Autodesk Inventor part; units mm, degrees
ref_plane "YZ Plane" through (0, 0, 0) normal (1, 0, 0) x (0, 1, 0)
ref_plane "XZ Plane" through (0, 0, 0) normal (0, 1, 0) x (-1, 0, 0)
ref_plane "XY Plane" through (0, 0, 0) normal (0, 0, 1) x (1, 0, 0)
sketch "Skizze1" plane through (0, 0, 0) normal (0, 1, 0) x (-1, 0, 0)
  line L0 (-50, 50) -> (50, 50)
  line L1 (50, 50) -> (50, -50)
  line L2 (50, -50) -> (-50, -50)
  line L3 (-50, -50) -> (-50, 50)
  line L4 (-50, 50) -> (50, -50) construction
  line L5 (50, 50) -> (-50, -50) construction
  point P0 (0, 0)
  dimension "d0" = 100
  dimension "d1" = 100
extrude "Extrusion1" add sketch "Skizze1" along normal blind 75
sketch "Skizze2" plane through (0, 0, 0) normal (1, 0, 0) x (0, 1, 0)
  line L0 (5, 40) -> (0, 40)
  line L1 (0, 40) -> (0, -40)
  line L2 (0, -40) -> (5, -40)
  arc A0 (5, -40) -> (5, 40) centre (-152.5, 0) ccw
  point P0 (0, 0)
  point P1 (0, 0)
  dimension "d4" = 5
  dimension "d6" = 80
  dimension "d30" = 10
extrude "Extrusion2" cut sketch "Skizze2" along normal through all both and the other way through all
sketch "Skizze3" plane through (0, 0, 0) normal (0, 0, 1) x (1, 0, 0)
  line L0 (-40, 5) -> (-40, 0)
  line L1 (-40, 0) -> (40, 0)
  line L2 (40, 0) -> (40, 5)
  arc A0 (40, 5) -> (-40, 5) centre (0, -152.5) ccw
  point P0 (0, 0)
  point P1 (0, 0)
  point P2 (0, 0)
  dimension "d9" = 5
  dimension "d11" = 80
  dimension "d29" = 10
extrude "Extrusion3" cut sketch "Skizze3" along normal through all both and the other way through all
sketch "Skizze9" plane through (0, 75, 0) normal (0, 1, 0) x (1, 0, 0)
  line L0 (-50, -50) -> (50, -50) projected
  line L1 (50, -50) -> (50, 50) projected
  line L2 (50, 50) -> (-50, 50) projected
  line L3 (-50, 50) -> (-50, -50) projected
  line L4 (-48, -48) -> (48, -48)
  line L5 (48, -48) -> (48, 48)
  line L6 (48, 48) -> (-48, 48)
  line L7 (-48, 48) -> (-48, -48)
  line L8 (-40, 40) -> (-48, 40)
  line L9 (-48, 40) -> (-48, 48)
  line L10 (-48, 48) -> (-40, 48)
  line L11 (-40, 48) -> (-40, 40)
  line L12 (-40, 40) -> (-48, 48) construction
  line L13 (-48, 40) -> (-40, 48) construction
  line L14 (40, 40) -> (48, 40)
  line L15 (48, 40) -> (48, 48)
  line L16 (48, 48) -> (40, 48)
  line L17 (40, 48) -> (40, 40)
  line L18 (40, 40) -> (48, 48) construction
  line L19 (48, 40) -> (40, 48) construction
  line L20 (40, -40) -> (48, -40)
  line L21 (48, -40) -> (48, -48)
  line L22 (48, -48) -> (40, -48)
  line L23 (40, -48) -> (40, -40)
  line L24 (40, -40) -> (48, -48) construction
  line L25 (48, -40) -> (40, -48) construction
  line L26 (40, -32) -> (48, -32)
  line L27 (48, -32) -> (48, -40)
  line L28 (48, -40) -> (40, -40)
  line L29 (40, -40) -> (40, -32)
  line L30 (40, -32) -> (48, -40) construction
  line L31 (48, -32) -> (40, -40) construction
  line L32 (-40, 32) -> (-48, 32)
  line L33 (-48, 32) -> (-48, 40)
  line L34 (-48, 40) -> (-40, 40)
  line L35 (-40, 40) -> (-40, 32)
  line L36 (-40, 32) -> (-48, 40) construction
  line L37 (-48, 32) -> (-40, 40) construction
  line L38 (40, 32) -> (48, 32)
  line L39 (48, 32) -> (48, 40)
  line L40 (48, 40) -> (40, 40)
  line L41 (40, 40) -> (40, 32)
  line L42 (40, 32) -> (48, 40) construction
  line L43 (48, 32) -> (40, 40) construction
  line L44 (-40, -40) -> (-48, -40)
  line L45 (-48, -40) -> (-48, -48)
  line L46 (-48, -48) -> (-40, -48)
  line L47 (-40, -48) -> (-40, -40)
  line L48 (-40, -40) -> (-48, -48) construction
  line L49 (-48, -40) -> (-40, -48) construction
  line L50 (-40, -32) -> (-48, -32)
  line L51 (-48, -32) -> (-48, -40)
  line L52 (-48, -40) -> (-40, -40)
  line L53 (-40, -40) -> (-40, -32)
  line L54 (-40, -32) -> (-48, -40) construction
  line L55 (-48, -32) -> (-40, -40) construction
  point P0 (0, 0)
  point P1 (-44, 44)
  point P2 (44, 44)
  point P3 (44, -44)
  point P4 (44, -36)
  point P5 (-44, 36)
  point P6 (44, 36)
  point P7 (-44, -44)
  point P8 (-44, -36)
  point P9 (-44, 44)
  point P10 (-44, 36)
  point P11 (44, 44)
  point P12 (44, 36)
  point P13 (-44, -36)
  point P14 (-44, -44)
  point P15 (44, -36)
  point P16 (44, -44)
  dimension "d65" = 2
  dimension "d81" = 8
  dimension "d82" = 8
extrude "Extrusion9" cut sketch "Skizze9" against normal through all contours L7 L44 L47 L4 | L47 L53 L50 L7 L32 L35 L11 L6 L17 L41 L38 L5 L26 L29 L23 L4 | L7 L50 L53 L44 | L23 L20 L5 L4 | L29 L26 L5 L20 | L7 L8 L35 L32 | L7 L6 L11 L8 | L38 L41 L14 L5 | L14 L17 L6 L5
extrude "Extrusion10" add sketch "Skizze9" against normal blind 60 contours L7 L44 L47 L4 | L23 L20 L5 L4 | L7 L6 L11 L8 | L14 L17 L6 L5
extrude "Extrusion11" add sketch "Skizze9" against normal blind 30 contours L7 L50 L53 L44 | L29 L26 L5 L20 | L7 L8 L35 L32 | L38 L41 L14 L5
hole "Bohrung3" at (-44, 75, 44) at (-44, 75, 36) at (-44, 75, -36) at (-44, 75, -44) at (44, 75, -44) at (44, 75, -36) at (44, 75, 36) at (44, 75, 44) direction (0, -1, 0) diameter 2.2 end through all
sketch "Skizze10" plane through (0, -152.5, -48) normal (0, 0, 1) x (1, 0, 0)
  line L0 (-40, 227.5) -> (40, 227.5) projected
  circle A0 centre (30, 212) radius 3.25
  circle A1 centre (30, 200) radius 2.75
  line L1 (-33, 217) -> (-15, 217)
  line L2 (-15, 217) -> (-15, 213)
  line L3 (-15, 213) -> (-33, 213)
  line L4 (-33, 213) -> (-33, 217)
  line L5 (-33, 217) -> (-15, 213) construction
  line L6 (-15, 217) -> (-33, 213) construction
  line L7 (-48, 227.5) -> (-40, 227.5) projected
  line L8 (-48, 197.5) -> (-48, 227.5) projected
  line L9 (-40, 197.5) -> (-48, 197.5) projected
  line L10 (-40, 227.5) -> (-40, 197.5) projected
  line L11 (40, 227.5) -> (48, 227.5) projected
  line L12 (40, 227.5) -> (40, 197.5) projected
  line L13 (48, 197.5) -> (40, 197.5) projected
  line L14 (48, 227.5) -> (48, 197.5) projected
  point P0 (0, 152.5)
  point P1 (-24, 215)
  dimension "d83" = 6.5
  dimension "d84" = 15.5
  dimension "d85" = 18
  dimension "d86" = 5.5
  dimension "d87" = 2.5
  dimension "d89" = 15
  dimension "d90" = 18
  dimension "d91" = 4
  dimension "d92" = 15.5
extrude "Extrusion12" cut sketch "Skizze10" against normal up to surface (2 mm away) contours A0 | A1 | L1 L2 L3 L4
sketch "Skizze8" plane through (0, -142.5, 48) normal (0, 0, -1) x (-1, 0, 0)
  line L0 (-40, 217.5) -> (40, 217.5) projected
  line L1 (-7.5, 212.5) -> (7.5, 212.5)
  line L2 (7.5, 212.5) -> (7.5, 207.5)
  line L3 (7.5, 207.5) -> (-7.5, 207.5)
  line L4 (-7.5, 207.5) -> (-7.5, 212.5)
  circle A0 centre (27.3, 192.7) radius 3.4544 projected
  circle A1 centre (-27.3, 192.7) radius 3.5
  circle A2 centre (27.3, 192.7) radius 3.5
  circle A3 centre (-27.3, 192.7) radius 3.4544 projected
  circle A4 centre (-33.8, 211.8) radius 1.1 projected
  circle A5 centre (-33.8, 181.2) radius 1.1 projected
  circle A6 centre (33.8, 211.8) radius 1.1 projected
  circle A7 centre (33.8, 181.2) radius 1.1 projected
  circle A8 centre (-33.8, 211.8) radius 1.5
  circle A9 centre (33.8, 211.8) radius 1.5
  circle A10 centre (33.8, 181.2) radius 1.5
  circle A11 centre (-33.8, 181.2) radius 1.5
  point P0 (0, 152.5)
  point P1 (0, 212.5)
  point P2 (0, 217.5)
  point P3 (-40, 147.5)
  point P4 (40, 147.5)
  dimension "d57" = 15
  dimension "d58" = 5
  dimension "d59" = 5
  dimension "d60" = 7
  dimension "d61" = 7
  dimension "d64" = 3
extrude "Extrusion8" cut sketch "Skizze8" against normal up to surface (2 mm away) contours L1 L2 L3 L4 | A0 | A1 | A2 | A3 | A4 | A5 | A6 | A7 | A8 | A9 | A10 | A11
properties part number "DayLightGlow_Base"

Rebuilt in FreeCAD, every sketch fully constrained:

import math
import FreeCAD as App
import Part
import Sketcher
from FreeCAD import Vector

doc = App.newDocument("Part")
body = doc.addObject("PartDesign::Body", "Body")

sketch1 = body.newObject("Sketcher::SketchObject", "Sketch")
sketch1.AttachmentSupport = (doc.getObject("XZ_Plane"), [""])
sketch1.MapMode = "FlatFace"
sketch1.addGeometry([
    Part.LineSegment(Vector(-50, 50, 0), Vector(50, 50, 0)),
    Part.LineSegment(Vector(50, 50, 0), Vector(50, -50, 0)),
    Part.LineSegment(Vector(50, -50, 0), Vector(-50, -50, 0)),
    Part.LineSegment(Vector(-50, -50, 0), Vector(-50, 50, 0)),
], False)
sketch1.addConstraint([
    Sketcher.Constraint("Coincident", 0, 2, 1, 1),
    Sketcher.Constraint("Coincident", 1, 2, 2, 1),
    Sketcher.Constraint("Coincident", 2, 2, 3, 1),
    Sketcher.Constraint("Coincident", 3, 2, 0, 1),
    Sketcher.Constraint("Horizontal", 0),
    Sketcher.Constraint("Vertical", 1),
    Sketcher.Constraint("Horizontal", 2),
    Sketcher.Constraint("Vertical", 3),
    Sketcher.Constraint("Symmetric", 0, 2, 2, 2, -1, 1),
    Sketcher.Constraint("Equal", 2, 1),
    Sketcher.Constraint("DistanceX", 0, 1, 0, 2, 100.0),
])
pad1 = body.newObject("PartDesign::Pad", "Pad")
pad1.Profile = sketch1
pad1.Length = 75
pad1.Reversed = True

sketch2 = body.newObject("Sketcher::SketchObject", "Sketch001")
sketch2.AttachmentSupport = (doc.getObject("YZ_Plane"), [""])
sketch2.MapMode = "FlatFace"
sketch2.addGeometry([
    Part.ArcOfCircle(Part.Circle(Vector(-152.5, 0, 0), Vector(0, 0, 1), 162.5), math.radians(-14.250033), math.radians(14.250033)),
    Part.LineSegment(Vector(5, 40, 0), Vector(0, 40, 0)),
    Part.LineSegment(Vector(0, 40, 0), Vector(0, -40, 0)),
    Part.LineSegment(Vector(0, -40, 0), Vector(5, -40, 0)),
], False)
sketch2.addConstraint([
    Sketcher.Constraint("Coincident", 0, 2, 1, 1),
    Sketcher.Constraint("Coincident", 1, 2, 2, 1),
    Sketcher.Constraint("Coincident", 2, 2, 3, 1),
    Sketcher.Constraint("Coincident", 3, 2, 0, 1),
    Sketcher.Constraint("Horizontal", 1),
    Sketcher.Constraint("Vertical", 2),
    Sketcher.Constraint("Horizontal", 3),
    Sketcher.Constraint("Symmetric", 1, 2, 2, 2, -1, 1),
    Sketcher.Constraint("PointOnObject", 0, 3, -1),
    Sketcher.Constraint("DistanceX", 1, 2, 1, 1, 5.0),
    Sketcher.Constraint("DistanceY", 2, 2, 2, 1, 80.0),
    Sketcher.Constraint("Radius", 0, 162.5),
])
pocket1 = body.newObject("PartDesign::Pocket", "Pocket")
pocket1.Profile = sketch2
pocket1.Type = "ThroughAll"
pocket1.Midplane = True

sketch3 = body.newObject("Sketcher::SketchObject", "Sketch002")
sketch3.AttachmentSupport = (doc.getObject("XY_Plane"), [""])
sketch3.MapMode = "FlatFace"
sketch3.addGeometry([
    Part.ArcOfCircle(Part.Circle(Vector(0, -152.5, 0), Vector(0, 0, 1), 162.5), math.radians(75.749967), math.radians(104.250033)),
    Part.LineSegment(Vector(-40, 5, 0), Vector(-40, 0, 0)),
    Part.LineSegment(Vector(-40, 0, 0), Vector(40, 0, 0)),
    Part.LineSegment(Vector(40, 0, 0), Vector(40, 5, 0)),
], False)
sketch3.addConstraint([
    Sketcher.Constraint("Coincident", 0, 2, 1, 1),
    Sketcher.Constraint("Coincident", 1, 2, 2, 1),
    Sketcher.Constraint("Coincident", 2, 2, 3, 1),
    Sketcher.Constraint("Coincident", 3, 2, 0, 1),
    Sketcher.Constraint("Vertical", 1),
    Sketcher.Constraint("Horizontal", 2),
    Sketcher.Constraint("Vertical", 3),
    Sketcher.Constraint("Symmetric", 1, 2, 2, 2, -1, 1),
    Sketcher.Constraint("PointOnObject", 0, 3, -2),
    Sketcher.Constraint("DistanceX", 2, 1, 2, 2, 80.0),
    Sketcher.Constraint("DistanceY", 1, 2, 1, 1, 5.0),
    Sketcher.Constraint("Radius", 0, 162.5),
])
pocket2 = body.newObject("PartDesign::Pocket", "Pocket001")
pocket2.Profile = sketch3
pocket2.Type = "ThroughAll"
pocket2.Midplane = True

sketch4 = body.newObject("Sketcher::SketchObject", "Sketch003")
sketch4.AttachmentSupport = (doc.getObject("XZ_Plane"), [""])
sketch4.MapMode = "FlatFace"
sketch4.AttachmentOffset = App.Placement(Vector(0, 0, -75), App.Rotation())
sketch4.addGeometry([
    Part.LineSegment(Vector(-48, 48, 0), Vector(48, 48, 0)),
    Part.LineSegment(Vector(48, 48, 0), Vector(48, -48, 0)),
    Part.LineSegment(Vector(48, -48, 0), Vector(-48, -48, 0)),
    Part.LineSegment(Vector(-48, -48, 0), Vector(-48, 48, 0)),
], False)
sketch4.addConstraint([
    Sketcher.Constraint("Coincident", 0, 2, 1, 1),
    Sketcher.Constraint("Coincident", 1, 2, 2, 1),
    Sketcher.Constraint("Coincident", 2, 2, 3, 1),
    Sketcher.Constraint("Coincident", 3, 2, 0, 1),
    Sketcher.Constraint("Horizontal", 0),
    Sketcher.Constraint("Vertical", 1),
    Sketcher.Constraint("Horizontal", 2),
    Sketcher.Constraint("Vertical", 3),
    Sketcher.Constraint("Symmetric", 0, 2, 2, 2, -1, 1),
    Sketcher.Constraint("Equal", 2, 1),
    Sketcher.Constraint("DistanceX", 0, 1, 0, 2, 96.0),
])
pocket3 = body.newObject("PartDesign::Pocket", "Pocket002")
pocket3.Profile = sketch4
pocket3.Type = "ThroughAll"
pocket3.Reversed = True

sketch5 = body.newObject("Sketcher::SketchObject", "Sketch004")
sketch5.AttachmentSupport = (doc.getObject("XZ_Plane"), [""])
sketch5.MapMode = "FlatFace"
sketch5.AttachmentOffset = App.Placement(Vector(0, 0, -75), App.Rotation())
sketch5.addGeometry([
    Part.LineSegment(Vector(-48, 40, 0), Vector(-48, 48, 0)),
    Part.LineSegment(Vector(-48, 48, 0), Vector(-40, 48, 0)),
    Part.LineSegment(Vector(-40, 48, 0), Vector(-40, 40, 0)),
    Part.LineSegment(Vector(-40, 40, 0), Vector(-48, 40, 0)),
    Part.LineSegment(Vector(40, 40, 0), Vector(40, 48, 0)),
    Part.LineSegment(Vector(40, 48, 0), Vector(48, 48, 0)),
    Part.LineSegment(Vector(48, 48, 0), Vector(48, 40, 0)),
    Part.LineSegment(Vector(48, 40, 0), Vector(40, 40, 0)),
    Part.LineSegment(Vector(-48, -48, 0), Vector(-48, -40, 0)),
    Part.LineSegment(Vector(-48, -40, 0), Vector(-40, -40, 0)),
    Part.LineSegment(Vector(-40, -40, 0), Vector(-40, -48, 0)),
    Part.LineSegment(Vector(-40, -48, 0), Vector(-48, -48, 0)),
    Part.LineSegment(Vector(40, -40, 0), Vector(48, -40, 0)),
    Part.LineSegment(Vector(48, -40, 0), Vector(48, -48, 0)),
    Part.LineSegment(Vector(48, -48, 0), Vector(40, -48, 0)),
    Part.LineSegment(Vector(40, -48, 0), Vector(40, -40, 0)),
], False)
sketch5.addConstraint([
    Sketcher.Constraint("Coincident", 0, 2, 1, 1),
    Sketcher.Constraint("Coincident", 1, 2, 2, 1),
    Sketcher.Constraint("Coincident", 2, 2, 3, 1),
    Sketcher.Constraint("Coincident", 3, 2, 0, 1),
    Sketcher.Constraint("Coincident", 4, 2, 5, 1),
    Sketcher.Constraint("Coincident", 5, 2, 6, 1),
    Sketcher.Constraint("Coincident", 6, 2, 7, 1),
    Sketcher.Constraint("Coincident", 7, 2, 4, 1),
    Sketcher.Constraint("Coincident", 8, 2, 9, 1),
    Sketcher.Constraint("Coincident", 9, 2, 10, 1),
    Sketcher.Constraint("Coincident", 10, 2, 11, 1),
    Sketcher.Constraint("Coincident", 11, 2, 8, 1),
    Sketcher.Constraint("Coincident", 12, 2, 13, 1),
    Sketcher.Constraint("Coincident", 13, 2, 14, 1),
    Sketcher.Constraint("Coincident", 14, 2, 15, 1),
    Sketcher.Constraint("Coincident", 15, 2, 12, 1),
    Sketcher.Constraint("Vertical", 0),
    Sketcher.Constraint("Horizontal", 1),
    Sketcher.Constraint("Vertical", 2),
    Sketcher.Constraint("Horizontal", 3),
    Sketcher.Constraint("Vertical", 4),
    Sketcher.Constraint("Horizontal", 5),
    Sketcher.Constraint("Vertical", 6),
    Sketcher.Constraint("Horizontal", 7),
    Sketcher.Constraint("Vertical", 8),
    Sketcher.Constraint("Horizontal", 9),
    Sketcher.Constraint("Vertical", 10),
    Sketcher.Constraint("Horizontal", 11),
    Sketcher.Constraint("Horizontal", 12),
    Sketcher.Constraint("Vertical", 13),
    Sketcher.Constraint("Horizontal", 14),
    Sketcher.Constraint("Vertical", 15),
    Sketcher.Constraint("Symmetric", 6, 2, 8, 2, -1, 1),
    Sketcher.Constraint("Symmetric", 4, 2, 10, 2, -1, 1),
    Sketcher.Constraint("Symmetric", 3, 2, 12, 2, -1, 1),
    Sketcher.Constraint("Symmetric", 1, 2, 14, 2, -1, 1),
    Sketcher.Constraint("Symmetric", 1, 2, 4, 2, -2),
    Sketcher.Constraint("Symmetric", 3, 2, 6, 2, -2),
    Sketcher.Constraint("Equal", 14, 0),
    Sketcher.Constraint("DistanceX", 1, 1, 1, 2, 8.0),
    Sketcher.Constraint("DistanceX", 0, 2, -1, 1, 48.0),
    Sketcher.Constraint("DistanceY", -1, 1, 0, 2, 48.0),
])
pad2 = body.newObject("PartDesign::Pad", "Pad001")
pad2.Profile = sketch5
pad2.Length = 60

sketch6 = body.newObject("Sketcher::SketchObject", "Sketch005")
sketch6.AttachmentSupport = (doc.getObject("XZ_Plane"), [""])
sketch6.MapMode = "FlatFace"
sketch6.AttachmentOffset = App.Placement(Vector(0, 0, -75), App.Rotation())
sketch6.addGeometry([
    Part.LineSegment(Vector(-48, 32, 0), Vector(-48, 40, 0)),
    Part.LineSegment(Vector(-48, 40, 0), Vector(-40, 40, 0)),
    Part.LineSegment(Vector(-40, 40, 0), Vector(-40, 32, 0)),
    Part.LineSegment(Vector(-40, 32, 0), Vector(-48, 32, 0)),
    Part.LineSegment(Vector(40, 32, 0), Vector(40, 40, 0)),
    Part.LineSegment(Vector(40, 40, 0), Vector(48, 40, 0)),
    Part.LineSegment(Vector(48, 40, 0), Vector(48, 32, 0)),
    Part.LineSegment(Vector(48, 32, 0), Vector(40, 32, 0)),
    Part.LineSegment(Vector(-48, -40, 0), Vector(-48, -32, 0)),
    Part.LineSegment(Vector(-48, -32, 0), Vector(-40, -32, 0)),
    Part.LineSegment(Vector(-40, -32, 0), Vector(-40, -40, 0)),
    Part.LineSegment(Vector(-40, -40, 0), Vector(-48, -40, 0)),
    Part.LineSegment(Vector(40, -32, 0), Vector(48, -32, 0)),
    Part.LineSegment(Vector(48, -32, 0), Vector(48, -40, 0)),
    Part.LineSegment(Vector(48, -40, 0), Vector(40, -40, 0)),
    Part.LineSegment(Vector(40, -40, 0), Vector(40, -32, 0)),
], False)
sketch6.addConstraint([
    Sketcher.Constraint("Coincident", 0, 2, 1, 1),
    Sketcher.Constraint("Coincident", 1, 2, 2, 1),
    Sketcher.Constraint("Coincident", 2, 2, 3, 1),
    Sketcher.Constraint("Coincident", 3, 2, 0, 1),
    Sketcher.Constraint("Coincident", 4, 2, 5, 1),
    Sketcher.Constraint("Coincident", 5, 2, 6, 1),
    Sketcher.Constraint("Coincident", 6, 2, 7, 1),
    Sketcher.Constraint("Coincident", 7, 2, 4, 1),
    Sketcher.Constraint("Coincident", 8, 2, 9, 1),
    Sketcher.Constraint("Coincident", 9, 2, 10, 1),
    Sketcher.Constraint("Coincident", 10, 2, 11, 1),
    Sketcher.Constraint("Coincident", 11, 2, 8, 1),
    Sketcher.Constraint("Coincident", 12, 2, 13, 1),
    Sketcher.Constraint("Coincident", 13, 2, 14, 1),
    Sketcher.Constraint("Coincident", 14, 2, 15, 1),
    Sketcher.Constraint("Coincident", 15, 2, 12, 1),
    Sketcher.Constraint("Vertical", 0),
    Sketcher.Constraint("Horizontal", 1),
    Sketcher.Constraint("Vertical", 2),
    Sketcher.Constraint("Horizontal", 3),
    Sketcher.Constraint("Vertical", 4),
    Sketcher.Constraint("Horizontal", 5),
    Sketcher.Constraint("Vertical", 6),
    Sketcher.Constraint("Horizontal", 7),
    Sketcher.Constraint("Vertical", 8),
    Sketcher.Constraint("Horizontal", 9),
    Sketcher.Constraint("Vertical", 10),
    Sketcher.Constraint("Horizontal", 11),
    Sketcher.Constraint("Horizontal", 12),
    Sketcher.Constraint("Vertical", 13),
    Sketcher.Constraint("Horizontal", 14),
    Sketcher.Constraint("Vertical", 15),
    Sketcher.Constraint("Symmetric", 6, 2, 8, 2, -1, 1),
    Sketcher.Constraint("Symmetric", 4, 2, 10, 2, -1, 1),
    Sketcher.Constraint("Symmetric", 3, 2, 12, 2, -1, 1),
    Sketcher.Constraint("Symmetric", 1, 2, 14, 2, -1, 1),
    Sketcher.Constraint("Symmetric", 1, 2, 4, 2, -2),
    Sketcher.Constraint("Symmetric", 3, 2, 6, 2, -2),
    Sketcher.Constraint("Equal", 14, 0),
    Sketcher.Constraint("DistanceX", 1, 1, 1, 2, 8.0),
    Sketcher.Constraint("DistanceX", 0, 2, -1, 1, 48.0),
    Sketcher.Constraint("DistanceY", -1, 1, 0, 2, 40.0),
])
pad3 = body.newObject("PartDesign::Pad", "Pad002")
pad3.Profile = sketch6
pad3.Length = 30

sketch7 = body.newObject("Sketcher::SketchObject", "Sketch006")
sketch7.AttachmentSupport = (doc.getObject("XZ_Plane"), [""])
sketch7.MapMode = "FlatFace"
sketch7.AttachmentOffset = App.Placement(Vector(0, 0, -75), App.Rotation())
sketch7.addGeometry([
    Part.Circle(Vector(-44, 44, 0), Vector(0, 0, 1), 1.1),
    Part.Circle(Vector(-44, 36, 0), Vector(0, 0, 1), 1.1),
    Part.Circle(Vector(-44, -36, 0), Vector(0, 0, 1), 1.1),
    Part.Circle(Vector(-44, -44, 0), Vector(0, 0, 1), 1.1),
    Part.Circle(Vector(44, -44, 0), Vector(0, 0, 1), 1.1),
    Part.Circle(Vector(44, -36, 0), Vector(0, 0, 1), 1.1),
    Part.Circle(Vector(44, 36, 0), Vector(0, 0, 1), 1.1),
    Part.Circle(Vector(44, 44, 0), Vector(0, 0, 1), 1.1),
], False)
sketch7.addConstraint([
    Sketcher.Constraint("Equal", 0, 1),
    Sketcher.Constraint("Equal", 1, 2),
    Sketcher.Constraint("Equal", 2, 3),
    Sketcher.Constraint("Equal", 3, 4),
    Sketcher.Constraint("Equal", 4, 5),
    Sketcher.Constraint("Equal", 5, 6),
    Sketcher.Constraint("Equal", 6, 7),
    Sketcher.Constraint("Symmetric", 0, 3, 4, 3, -1, 1),
    Sketcher.Constraint("Symmetric", 1, 3, 5, 3, -1, 1),
    Sketcher.Constraint("Symmetric", 2, 3, 6, 3, -1, 1),
    Sketcher.Constraint("Symmetric", 3, 3, 7, 3, -1, 1),
    Sketcher.Constraint("Symmetric", 3, 3, 4, 3, -2),
    Sketcher.Constraint("Symmetric", 2, 3, 5, 3, -2),
    Sketcher.Constraint("Vertical", 0, 3, 1, 3),
    Sketcher.Constraint("Diameter", 0, 2.2),
    Sketcher.Constraint("DistanceX", 0, 3, -1, 1, 44.0),
    Sketcher.Constraint("DistanceY", -1, 1, 0, 3, 44.0),
    Sketcher.Constraint("DistanceY", -1, 1, 1, 3, 36.0),
])
doc.recompute()
hole = body.newObject("PartDesign::Hole", "Hole")
hole.Profile = sketch7
hole.ThreadType = "None"
hole.Diameter = 2.2
hole.DepthType = "ThroughAll"
hole.Reversed = True

sketch8 = body.newObject("Sketcher::SketchObject", "Sketch007")
sketch8.AttachmentSupport = (doc.getObject("XY_Plane"), [""])
sketch8.MapMode = "FlatFace"
sketch8.AttachmentOffset = App.Placement(Vector(0, 0, -48), App.Rotation())
sketch8.addGeometry([
    Part.Circle(Vector(30, 59.5, 0), Vector(0, 0, 1), 3.25),
    Part.Circle(Vector(30, 47.5, 0), Vector(0, 0, 1), 2.75),
    Part.LineSegment(Vector(-15, 64.5, 0), Vector(-33, 64.5, 0)),
    Part.LineSegment(Vector(-33, 64.5, 0), Vector(-33, 60.5, 0)),
    Part.LineSegment(Vector(-33, 60.5, 0), Vector(-15, 60.5, 0)),
    Part.LineSegment(Vector(-15, 60.5, 0), Vector(-15, 64.5, 0)),
], False)
sketch8.addConstraint([
    Sketcher.Constraint("Coincident", 2, 2, 3, 1),
    Sketcher.Constraint("Coincident", 3, 2, 4, 1),
    Sketcher.Constraint("Coincident", 4, 2, 5, 1),
    Sketcher.Constraint("Coincident", 5, 2, 2, 1),
    Sketcher.Constraint("Horizontal", 2),
    Sketcher.Constraint("Vertical", 3),
    Sketcher.Constraint("Horizontal", 4),
    Sketcher.Constraint("Vertical", 5),
    Sketcher.Constraint("Vertical", 0, 3, 1, 3),
    Sketcher.Constraint("Diameter", 0, 6.5),
    Sketcher.Constraint("Diameter", 1, 5.5),
    Sketcher.Constraint("DistanceX", 2, 2, 2, 1, 18.0),
    Sketcher.Constraint("DistanceY", 3, 2, 3, 1, 4.0),
    Sketcher.Constraint("DistanceX", 4, 2, -1, 1, 15.0),
    Sketcher.Constraint("DistanceX", -1, 1, 0, 3, 30.0),
    Sketcher.Constraint("DistanceY", 1, 3, 0, 3, 12.0),
    Sketcher.Constraint("DistanceY", 0, 3, 2, 2, 5.0),
    Sketcher.Constraint("DistanceY", -1, 1, 0, 3, 59.5),
])
pocket4 = body.newObject("PartDesign::Pocket", "Pocket003")
pocket4.Profile = sketch8
pocket4.Length = 2

sketch9 = body.newObject("Sketcher::SketchObject", "Sketch008")
sketch9.AttachmentSupport = (doc.getObject("XY_Plane"), [""])
sketch9.MapMode = "FlatFace"
sketch9.AttachmentOffset = App.Placement(Vector(0, 0, 48), App.Rotation())
sketch9.addGeometry([
    Part.LineSegment(Vector(-7.5, 70, 0), Vector(7.5, 70, 0)),
    Part.LineSegment(Vector(7.5, 70, 0), Vector(7.5, 65, 0)),
    Part.LineSegment(Vector(7.5, 65, 0), Vector(-7.5, 65, 0)),
    Part.LineSegment(Vector(-7.5, 65, 0), Vector(-7.5, 70, 0)),
    Part.Circle(Vector(-27.3, 50.2, 0), Vector(0, 0, 1), 3.5),
    Part.Circle(Vector(27.3, 50.2, 0), Vector(0, 0, 1), 3.5),
    Part.Circle(Vector(33.8, 69.3, 0), Vector(0, 0, 1), 1.5),
    Part.Circle(Vector(33.8, 38.7, 0), Vector(0, 0, 1), 1.5),
    Part.Circle(Vector(-33.8, 69.3, 0), Vector(0, 0, 1), 1.5),
    Part.Circle(Vector(-33.8, 38.7, 0), Vector(0, 0, 1), 1.5),
], False)
sketch9.addConstraint([
    Sketcher.Constraint("Coincident", 0, 2, 1, 1),
    Sketcher.Constraint("Coincident", 1, 2, 2, 1),
    Sketcher.Constraint("Coincident", 2, 2, 3, 1),
    Sketcher.Constraint("Coincident", 3, 2, 0, 1),
    Sketcher.Constraint("Horizontal", 0),
    Sketcher.Constraint("Vertical", 1),
    Sketcher.Constraint("Horizontal", 2),
    Sketcher.Constraint("Vertical", 3),
    Sketcher.Constraint("Equal", 4, 5),
    Sketcher.Constraint("Equal", 6, 7),
    Sketcher.Constraint("Equal", 7, 8),
    Sketcher.Constraint("Equal", 8, 9),
    Sketcher.Constraint("Symmetric", 4, 3, 5, 3, -2),
    Sketcher.Constraint("Symmetric", 6, 3, 8, 3, -2),
    Sketcher.Constraint("Symmetric", 7, 3, 9, 3, -2),
    Sketcher.Constraint("Vertical", 6, 3, 7, 3),
    Sketcher.Constraint("Diameter", 4, 7.0),
    Sketcher.Constraint("Diameter", 6, 3.0),
    Sketcher.Constraint("DistanceX", 0, 1, 0, 2, 15.0),
    Sketcher.Constraint("DistanceY", 1, 2, 1, 1, 5.0),
    Sketcher.Constraint("DistanceY", -1, 1, 0, 2, 70.0),
    Sketcher.Constraint("DistanceX", 4, 3, -1, 1, 27.3),
    Sketcher.Constraint("DistanceY", -1, 1, 4, 3, 50.2),
    Sketcher.Constraint("DistanceX", -1, 1, 6, 3, 33.8),
    Sketcher.Constraint("DistanceY", -1, 1, 6, 3, 69.3),
    Sketcher.Constraint("DistanceY", -1, 1, 7, 3, 38.7),
    Sketcher.Constraint("DistanceX", -1, 1, 0, 2, 7.5),
])
pocket5 = body.newObject("PartDesign::Pocket", "Pocket004")
pocket5.Profile = sketch9
pocket5.Length = 2
pocket5.Reversed = True

doc.recompute()
